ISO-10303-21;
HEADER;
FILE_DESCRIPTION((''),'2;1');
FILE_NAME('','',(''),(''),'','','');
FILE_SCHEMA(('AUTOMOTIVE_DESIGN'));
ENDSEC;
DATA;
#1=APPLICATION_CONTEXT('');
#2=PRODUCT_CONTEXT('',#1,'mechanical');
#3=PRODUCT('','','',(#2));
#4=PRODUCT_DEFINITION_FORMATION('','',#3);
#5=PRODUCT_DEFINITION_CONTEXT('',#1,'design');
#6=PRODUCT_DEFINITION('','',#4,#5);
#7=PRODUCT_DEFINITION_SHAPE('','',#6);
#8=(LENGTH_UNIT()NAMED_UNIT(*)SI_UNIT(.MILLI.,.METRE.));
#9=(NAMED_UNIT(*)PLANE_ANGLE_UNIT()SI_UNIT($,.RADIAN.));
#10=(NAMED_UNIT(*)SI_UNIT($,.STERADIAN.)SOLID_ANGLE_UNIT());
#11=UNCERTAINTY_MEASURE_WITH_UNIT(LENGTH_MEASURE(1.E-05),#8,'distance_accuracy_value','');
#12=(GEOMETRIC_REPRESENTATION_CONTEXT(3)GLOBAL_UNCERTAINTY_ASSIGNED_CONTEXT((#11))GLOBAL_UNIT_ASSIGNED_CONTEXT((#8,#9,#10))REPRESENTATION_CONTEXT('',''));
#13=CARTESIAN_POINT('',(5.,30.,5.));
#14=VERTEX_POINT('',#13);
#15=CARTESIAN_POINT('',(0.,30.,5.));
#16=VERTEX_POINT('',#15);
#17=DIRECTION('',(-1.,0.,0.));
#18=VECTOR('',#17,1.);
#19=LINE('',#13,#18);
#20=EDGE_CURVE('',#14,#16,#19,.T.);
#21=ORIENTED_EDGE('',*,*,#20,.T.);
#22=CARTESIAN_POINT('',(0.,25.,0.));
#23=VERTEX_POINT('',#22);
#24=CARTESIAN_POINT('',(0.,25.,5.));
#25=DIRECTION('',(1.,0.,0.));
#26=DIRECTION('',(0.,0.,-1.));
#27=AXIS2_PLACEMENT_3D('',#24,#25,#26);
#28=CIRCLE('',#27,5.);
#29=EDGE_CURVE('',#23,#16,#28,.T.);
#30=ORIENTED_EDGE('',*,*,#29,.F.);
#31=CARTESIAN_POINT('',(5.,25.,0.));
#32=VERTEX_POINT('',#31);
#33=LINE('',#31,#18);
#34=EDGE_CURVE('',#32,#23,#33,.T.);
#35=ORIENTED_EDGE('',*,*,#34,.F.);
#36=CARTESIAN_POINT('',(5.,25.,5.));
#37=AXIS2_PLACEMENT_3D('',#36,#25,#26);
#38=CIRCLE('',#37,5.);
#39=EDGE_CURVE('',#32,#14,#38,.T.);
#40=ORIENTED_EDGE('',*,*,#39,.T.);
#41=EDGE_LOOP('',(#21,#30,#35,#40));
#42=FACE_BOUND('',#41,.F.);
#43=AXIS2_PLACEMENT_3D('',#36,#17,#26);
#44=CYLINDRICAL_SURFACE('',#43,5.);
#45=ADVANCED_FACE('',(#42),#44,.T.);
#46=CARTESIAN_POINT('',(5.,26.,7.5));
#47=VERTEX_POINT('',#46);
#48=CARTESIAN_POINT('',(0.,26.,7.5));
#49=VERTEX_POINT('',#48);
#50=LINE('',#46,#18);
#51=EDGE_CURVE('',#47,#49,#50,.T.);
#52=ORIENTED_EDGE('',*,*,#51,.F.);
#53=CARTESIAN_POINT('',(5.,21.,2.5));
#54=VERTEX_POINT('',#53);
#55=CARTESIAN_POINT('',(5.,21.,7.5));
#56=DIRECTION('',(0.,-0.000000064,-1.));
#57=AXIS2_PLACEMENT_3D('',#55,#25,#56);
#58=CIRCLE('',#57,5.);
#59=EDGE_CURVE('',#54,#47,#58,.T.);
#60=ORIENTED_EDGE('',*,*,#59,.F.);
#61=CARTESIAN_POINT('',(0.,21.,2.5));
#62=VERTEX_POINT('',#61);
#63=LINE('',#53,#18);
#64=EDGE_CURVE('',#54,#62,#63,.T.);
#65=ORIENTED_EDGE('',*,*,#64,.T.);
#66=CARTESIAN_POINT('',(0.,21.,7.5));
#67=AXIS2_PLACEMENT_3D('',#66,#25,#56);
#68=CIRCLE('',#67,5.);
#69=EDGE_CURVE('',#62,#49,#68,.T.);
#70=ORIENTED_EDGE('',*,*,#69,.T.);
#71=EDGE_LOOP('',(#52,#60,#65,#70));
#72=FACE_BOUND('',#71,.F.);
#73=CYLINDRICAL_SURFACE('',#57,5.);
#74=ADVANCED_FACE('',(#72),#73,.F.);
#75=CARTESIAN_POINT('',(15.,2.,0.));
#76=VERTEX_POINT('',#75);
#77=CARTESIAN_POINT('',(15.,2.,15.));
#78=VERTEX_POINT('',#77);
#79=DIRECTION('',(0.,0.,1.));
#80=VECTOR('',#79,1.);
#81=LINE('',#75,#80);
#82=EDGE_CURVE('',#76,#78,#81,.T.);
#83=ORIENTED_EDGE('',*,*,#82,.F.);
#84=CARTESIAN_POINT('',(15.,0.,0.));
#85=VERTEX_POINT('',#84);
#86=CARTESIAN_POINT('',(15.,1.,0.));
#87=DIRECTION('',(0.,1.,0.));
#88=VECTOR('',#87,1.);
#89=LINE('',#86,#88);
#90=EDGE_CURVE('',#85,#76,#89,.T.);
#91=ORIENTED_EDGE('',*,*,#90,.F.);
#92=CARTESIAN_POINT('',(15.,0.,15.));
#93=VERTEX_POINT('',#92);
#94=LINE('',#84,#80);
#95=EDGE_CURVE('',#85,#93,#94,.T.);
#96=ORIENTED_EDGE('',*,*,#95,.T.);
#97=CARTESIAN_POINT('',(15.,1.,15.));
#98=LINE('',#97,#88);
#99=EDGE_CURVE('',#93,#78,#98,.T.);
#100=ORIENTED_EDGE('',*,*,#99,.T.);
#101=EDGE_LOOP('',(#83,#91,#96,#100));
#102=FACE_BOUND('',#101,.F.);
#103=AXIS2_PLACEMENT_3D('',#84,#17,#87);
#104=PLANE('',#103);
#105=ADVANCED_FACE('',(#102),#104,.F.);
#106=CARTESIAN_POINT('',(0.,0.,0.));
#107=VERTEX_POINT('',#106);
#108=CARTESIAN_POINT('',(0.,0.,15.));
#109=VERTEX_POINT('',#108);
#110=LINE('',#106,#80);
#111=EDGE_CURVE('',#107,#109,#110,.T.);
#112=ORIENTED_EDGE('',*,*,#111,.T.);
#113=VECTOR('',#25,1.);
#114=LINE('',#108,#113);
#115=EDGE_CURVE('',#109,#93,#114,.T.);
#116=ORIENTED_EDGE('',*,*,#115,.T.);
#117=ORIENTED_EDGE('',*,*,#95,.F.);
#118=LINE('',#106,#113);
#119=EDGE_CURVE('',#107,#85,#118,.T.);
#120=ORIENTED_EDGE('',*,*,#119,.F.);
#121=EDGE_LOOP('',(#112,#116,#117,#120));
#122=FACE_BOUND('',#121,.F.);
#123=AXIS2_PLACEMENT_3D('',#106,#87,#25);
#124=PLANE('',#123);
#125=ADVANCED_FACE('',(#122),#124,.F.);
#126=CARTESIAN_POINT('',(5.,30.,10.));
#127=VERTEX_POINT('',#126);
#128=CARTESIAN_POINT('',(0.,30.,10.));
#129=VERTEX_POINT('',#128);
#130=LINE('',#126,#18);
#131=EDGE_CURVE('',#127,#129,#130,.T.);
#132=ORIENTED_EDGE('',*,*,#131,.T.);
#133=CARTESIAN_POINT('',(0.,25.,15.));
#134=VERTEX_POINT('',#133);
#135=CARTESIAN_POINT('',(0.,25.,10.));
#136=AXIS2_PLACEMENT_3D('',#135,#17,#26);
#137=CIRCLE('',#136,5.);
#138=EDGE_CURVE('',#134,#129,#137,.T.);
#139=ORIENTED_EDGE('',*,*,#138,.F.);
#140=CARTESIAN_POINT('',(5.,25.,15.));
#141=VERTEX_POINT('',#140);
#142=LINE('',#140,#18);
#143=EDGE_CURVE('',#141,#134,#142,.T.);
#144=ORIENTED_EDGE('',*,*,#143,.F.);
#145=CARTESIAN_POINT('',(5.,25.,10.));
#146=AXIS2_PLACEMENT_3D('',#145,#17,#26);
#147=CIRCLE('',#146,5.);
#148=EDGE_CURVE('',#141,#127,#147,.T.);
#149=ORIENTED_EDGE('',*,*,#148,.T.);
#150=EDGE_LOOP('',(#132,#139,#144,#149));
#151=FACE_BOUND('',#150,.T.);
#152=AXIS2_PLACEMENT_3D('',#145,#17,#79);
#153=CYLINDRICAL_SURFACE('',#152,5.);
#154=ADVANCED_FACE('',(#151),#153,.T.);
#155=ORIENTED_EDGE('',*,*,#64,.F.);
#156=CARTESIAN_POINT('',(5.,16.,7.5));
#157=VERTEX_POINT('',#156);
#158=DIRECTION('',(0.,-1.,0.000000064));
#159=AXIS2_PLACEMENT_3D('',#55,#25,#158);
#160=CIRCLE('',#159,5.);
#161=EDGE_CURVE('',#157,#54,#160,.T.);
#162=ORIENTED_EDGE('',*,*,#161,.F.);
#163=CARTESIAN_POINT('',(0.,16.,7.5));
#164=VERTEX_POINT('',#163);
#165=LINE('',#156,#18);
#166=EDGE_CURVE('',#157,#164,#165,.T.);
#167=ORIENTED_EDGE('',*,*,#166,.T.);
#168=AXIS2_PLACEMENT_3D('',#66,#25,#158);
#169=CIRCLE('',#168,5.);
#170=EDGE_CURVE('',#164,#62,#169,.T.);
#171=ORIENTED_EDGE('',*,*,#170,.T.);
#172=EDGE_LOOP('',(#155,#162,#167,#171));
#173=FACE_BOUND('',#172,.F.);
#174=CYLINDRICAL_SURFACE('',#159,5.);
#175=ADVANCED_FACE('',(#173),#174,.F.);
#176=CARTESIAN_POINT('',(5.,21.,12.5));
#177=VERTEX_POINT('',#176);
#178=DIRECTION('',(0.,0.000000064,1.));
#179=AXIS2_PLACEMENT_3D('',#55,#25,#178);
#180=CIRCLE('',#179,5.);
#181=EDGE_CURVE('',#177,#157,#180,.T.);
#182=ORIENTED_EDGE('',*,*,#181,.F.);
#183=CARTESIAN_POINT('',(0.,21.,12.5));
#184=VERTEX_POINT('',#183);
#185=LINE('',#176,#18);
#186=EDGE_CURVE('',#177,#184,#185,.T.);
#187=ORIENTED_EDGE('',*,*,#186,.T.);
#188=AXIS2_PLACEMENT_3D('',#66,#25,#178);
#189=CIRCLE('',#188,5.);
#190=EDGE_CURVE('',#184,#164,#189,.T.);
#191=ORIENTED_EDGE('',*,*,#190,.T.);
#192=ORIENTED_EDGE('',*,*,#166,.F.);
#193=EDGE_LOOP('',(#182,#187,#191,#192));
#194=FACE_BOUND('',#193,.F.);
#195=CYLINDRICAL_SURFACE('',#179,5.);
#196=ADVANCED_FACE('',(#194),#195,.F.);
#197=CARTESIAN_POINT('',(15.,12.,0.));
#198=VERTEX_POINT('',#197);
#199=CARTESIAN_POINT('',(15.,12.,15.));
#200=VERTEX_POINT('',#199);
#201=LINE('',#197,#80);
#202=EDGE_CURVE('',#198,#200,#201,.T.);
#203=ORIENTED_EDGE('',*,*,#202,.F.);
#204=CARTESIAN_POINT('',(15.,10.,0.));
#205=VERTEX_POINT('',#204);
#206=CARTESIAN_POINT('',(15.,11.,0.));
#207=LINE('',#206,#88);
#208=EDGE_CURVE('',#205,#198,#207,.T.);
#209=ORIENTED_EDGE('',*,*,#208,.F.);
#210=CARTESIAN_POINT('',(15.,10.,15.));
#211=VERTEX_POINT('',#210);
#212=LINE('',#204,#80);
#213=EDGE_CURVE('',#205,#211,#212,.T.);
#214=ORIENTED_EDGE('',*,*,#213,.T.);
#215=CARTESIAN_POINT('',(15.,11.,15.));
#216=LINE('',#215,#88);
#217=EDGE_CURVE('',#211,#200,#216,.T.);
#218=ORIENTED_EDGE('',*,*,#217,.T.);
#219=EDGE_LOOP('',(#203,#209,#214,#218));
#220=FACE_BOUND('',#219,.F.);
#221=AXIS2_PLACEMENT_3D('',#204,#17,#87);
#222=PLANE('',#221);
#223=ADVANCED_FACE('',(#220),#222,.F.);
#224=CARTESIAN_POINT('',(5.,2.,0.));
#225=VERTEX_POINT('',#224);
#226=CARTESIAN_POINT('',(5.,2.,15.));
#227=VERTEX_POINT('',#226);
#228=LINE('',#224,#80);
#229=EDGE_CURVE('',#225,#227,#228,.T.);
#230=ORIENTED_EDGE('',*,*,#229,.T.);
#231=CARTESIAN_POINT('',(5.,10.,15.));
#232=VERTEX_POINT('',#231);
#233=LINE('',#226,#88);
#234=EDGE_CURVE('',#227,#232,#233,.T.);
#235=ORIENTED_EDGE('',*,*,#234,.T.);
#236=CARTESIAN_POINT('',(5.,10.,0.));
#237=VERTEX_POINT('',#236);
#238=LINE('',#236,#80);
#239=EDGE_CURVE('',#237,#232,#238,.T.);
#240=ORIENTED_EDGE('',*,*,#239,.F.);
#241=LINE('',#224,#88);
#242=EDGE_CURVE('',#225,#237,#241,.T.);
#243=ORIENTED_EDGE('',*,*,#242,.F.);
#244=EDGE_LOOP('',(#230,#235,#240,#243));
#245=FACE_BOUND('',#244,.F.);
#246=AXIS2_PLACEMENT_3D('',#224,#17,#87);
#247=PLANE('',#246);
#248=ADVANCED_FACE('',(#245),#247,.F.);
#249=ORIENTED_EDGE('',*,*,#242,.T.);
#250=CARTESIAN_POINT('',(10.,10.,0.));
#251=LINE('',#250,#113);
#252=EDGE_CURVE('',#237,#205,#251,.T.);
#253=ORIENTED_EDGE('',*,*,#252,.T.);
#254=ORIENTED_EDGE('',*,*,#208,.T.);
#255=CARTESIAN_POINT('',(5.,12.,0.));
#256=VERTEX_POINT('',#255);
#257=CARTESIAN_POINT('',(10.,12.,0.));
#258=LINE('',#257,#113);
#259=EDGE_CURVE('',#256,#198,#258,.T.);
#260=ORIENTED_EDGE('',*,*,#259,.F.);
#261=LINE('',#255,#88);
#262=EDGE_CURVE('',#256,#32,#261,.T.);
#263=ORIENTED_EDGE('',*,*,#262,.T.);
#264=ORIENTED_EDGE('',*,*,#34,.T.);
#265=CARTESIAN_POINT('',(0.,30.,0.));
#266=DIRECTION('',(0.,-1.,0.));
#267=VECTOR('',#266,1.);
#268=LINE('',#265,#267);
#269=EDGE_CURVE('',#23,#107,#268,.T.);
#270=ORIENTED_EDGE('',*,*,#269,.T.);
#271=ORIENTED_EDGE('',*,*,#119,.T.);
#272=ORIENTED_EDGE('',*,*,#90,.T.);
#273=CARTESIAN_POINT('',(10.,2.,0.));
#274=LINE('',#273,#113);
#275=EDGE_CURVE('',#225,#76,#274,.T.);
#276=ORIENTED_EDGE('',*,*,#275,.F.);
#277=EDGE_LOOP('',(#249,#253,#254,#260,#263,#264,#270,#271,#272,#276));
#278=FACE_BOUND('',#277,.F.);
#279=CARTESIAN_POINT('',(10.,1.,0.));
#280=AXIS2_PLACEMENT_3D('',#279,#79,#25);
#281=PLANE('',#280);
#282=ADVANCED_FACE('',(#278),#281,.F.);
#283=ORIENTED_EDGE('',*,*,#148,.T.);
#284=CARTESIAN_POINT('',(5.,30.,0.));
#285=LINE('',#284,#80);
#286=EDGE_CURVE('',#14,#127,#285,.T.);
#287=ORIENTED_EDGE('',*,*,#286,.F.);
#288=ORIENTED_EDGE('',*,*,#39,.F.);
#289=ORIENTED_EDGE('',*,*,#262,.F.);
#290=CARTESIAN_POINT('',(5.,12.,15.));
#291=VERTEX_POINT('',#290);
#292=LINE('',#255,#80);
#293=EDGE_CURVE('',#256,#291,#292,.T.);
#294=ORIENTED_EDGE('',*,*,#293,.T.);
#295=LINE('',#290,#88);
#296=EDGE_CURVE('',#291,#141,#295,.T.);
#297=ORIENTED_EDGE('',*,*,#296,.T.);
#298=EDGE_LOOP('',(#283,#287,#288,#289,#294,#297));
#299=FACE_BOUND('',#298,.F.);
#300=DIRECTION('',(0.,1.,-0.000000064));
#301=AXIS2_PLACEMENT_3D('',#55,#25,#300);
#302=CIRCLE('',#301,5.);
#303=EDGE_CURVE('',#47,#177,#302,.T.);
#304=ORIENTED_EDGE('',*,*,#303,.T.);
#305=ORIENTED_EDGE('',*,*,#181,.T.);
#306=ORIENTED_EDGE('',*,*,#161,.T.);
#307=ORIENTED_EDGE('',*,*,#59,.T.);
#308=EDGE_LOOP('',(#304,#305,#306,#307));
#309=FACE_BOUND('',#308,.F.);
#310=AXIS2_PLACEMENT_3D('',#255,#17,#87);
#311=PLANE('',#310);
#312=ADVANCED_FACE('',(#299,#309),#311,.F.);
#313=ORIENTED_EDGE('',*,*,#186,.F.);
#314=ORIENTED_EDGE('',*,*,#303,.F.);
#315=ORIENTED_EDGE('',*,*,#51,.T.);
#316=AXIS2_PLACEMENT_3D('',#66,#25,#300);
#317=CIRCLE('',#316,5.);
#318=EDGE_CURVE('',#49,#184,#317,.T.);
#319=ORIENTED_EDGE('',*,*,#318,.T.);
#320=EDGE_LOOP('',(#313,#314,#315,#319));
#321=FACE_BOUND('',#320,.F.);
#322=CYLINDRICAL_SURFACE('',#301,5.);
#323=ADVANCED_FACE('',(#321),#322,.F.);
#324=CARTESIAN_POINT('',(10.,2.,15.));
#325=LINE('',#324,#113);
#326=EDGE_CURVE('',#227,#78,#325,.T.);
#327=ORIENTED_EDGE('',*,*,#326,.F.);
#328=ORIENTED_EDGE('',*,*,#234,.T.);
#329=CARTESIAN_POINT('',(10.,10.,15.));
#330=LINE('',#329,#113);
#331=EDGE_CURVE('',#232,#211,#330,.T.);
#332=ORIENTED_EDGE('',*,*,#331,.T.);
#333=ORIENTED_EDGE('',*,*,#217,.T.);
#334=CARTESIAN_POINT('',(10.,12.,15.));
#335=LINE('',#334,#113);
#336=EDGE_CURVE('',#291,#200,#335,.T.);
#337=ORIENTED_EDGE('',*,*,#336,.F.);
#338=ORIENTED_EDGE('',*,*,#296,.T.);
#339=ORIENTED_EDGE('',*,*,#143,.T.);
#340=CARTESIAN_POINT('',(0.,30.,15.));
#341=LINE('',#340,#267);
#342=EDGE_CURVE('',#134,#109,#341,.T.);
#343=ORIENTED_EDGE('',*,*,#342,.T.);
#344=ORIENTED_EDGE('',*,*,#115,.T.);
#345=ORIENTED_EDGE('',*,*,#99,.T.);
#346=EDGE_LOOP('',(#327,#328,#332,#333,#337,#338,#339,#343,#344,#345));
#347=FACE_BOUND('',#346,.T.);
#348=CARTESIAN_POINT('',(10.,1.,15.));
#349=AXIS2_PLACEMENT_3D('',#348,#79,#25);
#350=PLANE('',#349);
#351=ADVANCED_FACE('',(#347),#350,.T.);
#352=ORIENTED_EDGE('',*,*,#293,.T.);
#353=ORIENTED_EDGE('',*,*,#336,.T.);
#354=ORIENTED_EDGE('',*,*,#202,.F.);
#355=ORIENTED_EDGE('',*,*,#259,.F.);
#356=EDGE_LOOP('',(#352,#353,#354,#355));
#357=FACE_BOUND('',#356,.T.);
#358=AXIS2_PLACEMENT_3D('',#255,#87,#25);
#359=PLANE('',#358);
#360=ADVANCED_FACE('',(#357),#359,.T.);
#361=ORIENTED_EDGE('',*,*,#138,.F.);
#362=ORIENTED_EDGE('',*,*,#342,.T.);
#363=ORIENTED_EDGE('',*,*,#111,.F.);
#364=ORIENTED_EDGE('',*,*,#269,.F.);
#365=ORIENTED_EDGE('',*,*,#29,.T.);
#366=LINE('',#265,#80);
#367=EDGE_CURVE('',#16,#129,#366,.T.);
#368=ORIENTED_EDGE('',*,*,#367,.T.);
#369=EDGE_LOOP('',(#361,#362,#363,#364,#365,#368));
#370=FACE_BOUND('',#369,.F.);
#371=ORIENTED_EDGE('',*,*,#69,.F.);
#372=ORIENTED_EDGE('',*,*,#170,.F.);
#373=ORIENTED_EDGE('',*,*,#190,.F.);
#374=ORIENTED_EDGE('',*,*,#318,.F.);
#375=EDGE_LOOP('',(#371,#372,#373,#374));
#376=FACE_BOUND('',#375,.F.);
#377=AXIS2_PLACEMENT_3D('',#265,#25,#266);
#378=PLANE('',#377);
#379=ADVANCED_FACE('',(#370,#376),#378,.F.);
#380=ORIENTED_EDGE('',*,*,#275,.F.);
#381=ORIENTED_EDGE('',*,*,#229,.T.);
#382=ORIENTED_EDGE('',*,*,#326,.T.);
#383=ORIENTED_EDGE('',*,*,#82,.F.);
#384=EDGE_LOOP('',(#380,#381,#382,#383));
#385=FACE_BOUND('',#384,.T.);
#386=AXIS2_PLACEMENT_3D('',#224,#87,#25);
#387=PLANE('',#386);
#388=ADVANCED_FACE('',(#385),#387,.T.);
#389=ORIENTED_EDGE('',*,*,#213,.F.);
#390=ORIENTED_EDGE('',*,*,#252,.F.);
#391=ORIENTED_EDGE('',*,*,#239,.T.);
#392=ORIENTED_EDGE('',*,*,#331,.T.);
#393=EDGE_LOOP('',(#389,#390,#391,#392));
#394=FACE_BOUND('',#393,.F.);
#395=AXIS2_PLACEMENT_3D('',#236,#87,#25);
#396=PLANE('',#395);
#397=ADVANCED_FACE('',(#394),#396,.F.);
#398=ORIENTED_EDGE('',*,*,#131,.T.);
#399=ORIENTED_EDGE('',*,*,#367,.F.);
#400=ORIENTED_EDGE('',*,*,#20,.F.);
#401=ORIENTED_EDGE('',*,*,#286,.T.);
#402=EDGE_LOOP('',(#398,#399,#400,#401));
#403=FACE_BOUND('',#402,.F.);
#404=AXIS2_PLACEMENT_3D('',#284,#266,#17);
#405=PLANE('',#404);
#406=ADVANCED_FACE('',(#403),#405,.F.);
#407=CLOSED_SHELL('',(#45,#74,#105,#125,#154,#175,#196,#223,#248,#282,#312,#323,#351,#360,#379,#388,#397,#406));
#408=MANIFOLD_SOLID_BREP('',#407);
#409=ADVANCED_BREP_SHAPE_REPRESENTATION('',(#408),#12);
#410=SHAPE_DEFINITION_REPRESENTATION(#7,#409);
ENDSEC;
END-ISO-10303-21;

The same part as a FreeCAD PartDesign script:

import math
import FreeCAD as App
import Part
import Sketcher


def edges_at(feature, points):
    """Names of the edges that pass closest to the given points."""
    edges = feature.Shape.Edges
    near = lambda p: min(range(len(edges)), key=lambda i: edges[i].distToShape(Part.Vertex(*p))[0])
    return sorted({f"Edge{near(p) + 1}" for p in points})

doc = App.newDocument("Part")
body = doc.addObject("PartDesign::Body", "Body")

sketch1 = body.newObject("Sketcher::SketchObject", "Sketch")
sketch1.AttachmentSupport = (doc.getObject("XY_Plane"), [""])
sketch1.MapMode = "FlatFace"
sketch1.addGeometry([
    Part.LineSegment(App.Vector(15, 0, 0), App.Vector(15, 2, 0)),
    Part.LineSegment(App.Vector(15, 2, 0), App.Vector(5, 2, 0)),
    Part.LineSegment(App.Vector(5, 2, 0), App.Vector(5, 10, 0)),
    Part.LineSegment(App.Vector(5, 10, 0), App.Vector(15, 10, 0)),
    Part.LineSegment(App.Vector(15, 10, 0), App.Vector(15, 12, 0)),
    Part.LineSegment(App.Vector(15, 12, 0), App.Vector(5, 12, 0)),
    Part.LineSegment(App.Vector(5, 12, 0), App.Vector(5, 30, 0)),
    Part.LineSegment(App.Vector(5, 30, 0), App.Vector(0, 30, 0)),
    Part.LineSegment(App.Vector(0, 30, 0), App.Vector(0, 0, 0)),
    Part.LineSegment(App.Vector(0, 0, 0), App.Vector(15, 0, 0)),
], False)
sketch1.addConstraint([
    Sketcher.Constraint("Coincident", 0, 2, 1, 1),
    Sketcher.Constraint("Coincident", 1, 2, 2, 1),
    Sketcher.Constraint("Coincident", 2, 2, 3, 1),
    Sketcher.Constraint("Coincident", 3, 2, 4, 1),
    Sketcher.Constraint("Coincident", 4, 2, 5, 1),
    Sketcher.Constraint("Coincident", 5, 2, 6, 1),
    Sketcher.Constraint("Coincident", 6, 2, 7, 1),
    Sketcher.Constraint("Coincident", 7, 2, 8, 1),
    Sketcher.Constraint("Coincident", 8, 2, 9, 1),
    Sketcher.Constraint("Coincident", 9, 2, 0, 1),
    Sketcher.Constraint("Vertical", 0),
    Sketcher.Constraint("Horizontal", 1),
    Sketcher.Constraint("Vertical", 2),
    Sketcher.Constraint("Horizontal", 3),
    Sketcher.Constraint("Vertical", 4),
    Sketcher.Constraint("Horizontal", 5),
    Sketcher.Constraint("Vertical", 6),
    Sketcher.Constraint("Horizontal", 7),
    Sketcher.Constraint("Vertical", 8),
    Sketcher.Constraint("Horizontal", 9),
    Sketcher.Constraint("Coincident", 8, 2, -1, 1),
    Sketcher.Constraint("Vertical", 0, 2, 3, 2),
    Sketcher.Constraint("Vertical", 2, 2, 5, 2),
    Sketcher.Constraint("Equal", 0, 4),
    Sketcher.Constraint("DistanceX", 1, 2, 1, 1, 10.0),
    Sketcher.Constraint("DistanceX", 7, 2, 7, 1, 5.0),
    Sketcher.Constraint("DistanceY", 0, 1, 0, 2, 2.0),
    Sketcher.Constraint("DistanceY", 2, 1, 2, 2, 8.0),
    Sketcher.Constraint("DistanceY", 6, 1, 6, 2, 18.0),
])
pad1 = body.newObject("PartDesign::Pad", "Pad")
pad1.Profile = sketch1
pad1.Length = 15

sketch2 = body.newObject("Sketcher::SketchObject", "Sketch001")
sketch2.AttachmentSupport = (doc.getObject("YZ_Plane"), [""])
sketch2.MapMode = "FlatFace"
sketch2.AttachmentOffset = App.Placement(App.Vector(0, 0, 5), App.Rotation())
sketch2.addGeometry([
    Part.ArcOfCircle(Part.Circle(App.Vector(21, 7.5, 0), App.Vector(0, 0, 1), 5), math.radians(89.999996), math.radians(180.000004)),
    Part.ArcOfCircle(Part.Circle(App.Vector(21, 7.5, 0), App.Vector(0, 0, 1), 5), math.radians(179.999996), math.radians(270.000004)),
    Part.ArcOfCircle(Part.Circle(App.Vector(21, 7.5, 0), App.Vector(0, 0, 1), 5), math.radians(-90.000004), math.radians(0.000004)),
    Part.ArcOfCircle(Part.Circle(App.Vector(21, 7.5, 0), App.Vector(0, 0, 1), 5), math.radians(-0.000004), math.radians(90.000004)),
], False)
sketch2.addConstraint([
    Sketcher.Constraint("Tangent", 0, 2, 1, 1),
    Sketcher.Constraint("Tangent", 1, 2, 2, 1),
    Sketcher.Constraint("Tangent", 2, 2, 3, 1),
    Sketcher.Constraint("Tangent", 3, 2, 0, 1),
    Sketcher.Constraint("Equal", 0, 1),
    Sketcher.Constraint("Horizontal", 3, 3, 0, 2),
    Sketcher.Constraint("Horizontal", 0, 2, 2, 2),
    Sketcher.Constraint("Vertical", 3, 3, 1, 2),
    Sketcher.Constraint("Vertical", 1, 2, 3, 2),
    Sketcher.Constraint("Radius", 0, 5.0),
    Sketcher.Constraint("DistanceX", -1, 1, 0, 3, 21.0),
    Sketcher.Constraint("DistanceY", -1, 1, 0, 3, 7.5),
])
pocket1 = body.newObject("PartDesign::Pocket", "Pocket")
pocket1.Profile = sketch2
pocket1.Type = "ThroughAll"
doc.recompute()

fillet = body.newObject("PartDesign::Fillet", "Fillet")
fillet.Base = (pocket1, edges_at(pocket1, [(2.5, 30, 15), (2.5, 30, 0)]))
fillet.Radius = 5

doc.recompute()
